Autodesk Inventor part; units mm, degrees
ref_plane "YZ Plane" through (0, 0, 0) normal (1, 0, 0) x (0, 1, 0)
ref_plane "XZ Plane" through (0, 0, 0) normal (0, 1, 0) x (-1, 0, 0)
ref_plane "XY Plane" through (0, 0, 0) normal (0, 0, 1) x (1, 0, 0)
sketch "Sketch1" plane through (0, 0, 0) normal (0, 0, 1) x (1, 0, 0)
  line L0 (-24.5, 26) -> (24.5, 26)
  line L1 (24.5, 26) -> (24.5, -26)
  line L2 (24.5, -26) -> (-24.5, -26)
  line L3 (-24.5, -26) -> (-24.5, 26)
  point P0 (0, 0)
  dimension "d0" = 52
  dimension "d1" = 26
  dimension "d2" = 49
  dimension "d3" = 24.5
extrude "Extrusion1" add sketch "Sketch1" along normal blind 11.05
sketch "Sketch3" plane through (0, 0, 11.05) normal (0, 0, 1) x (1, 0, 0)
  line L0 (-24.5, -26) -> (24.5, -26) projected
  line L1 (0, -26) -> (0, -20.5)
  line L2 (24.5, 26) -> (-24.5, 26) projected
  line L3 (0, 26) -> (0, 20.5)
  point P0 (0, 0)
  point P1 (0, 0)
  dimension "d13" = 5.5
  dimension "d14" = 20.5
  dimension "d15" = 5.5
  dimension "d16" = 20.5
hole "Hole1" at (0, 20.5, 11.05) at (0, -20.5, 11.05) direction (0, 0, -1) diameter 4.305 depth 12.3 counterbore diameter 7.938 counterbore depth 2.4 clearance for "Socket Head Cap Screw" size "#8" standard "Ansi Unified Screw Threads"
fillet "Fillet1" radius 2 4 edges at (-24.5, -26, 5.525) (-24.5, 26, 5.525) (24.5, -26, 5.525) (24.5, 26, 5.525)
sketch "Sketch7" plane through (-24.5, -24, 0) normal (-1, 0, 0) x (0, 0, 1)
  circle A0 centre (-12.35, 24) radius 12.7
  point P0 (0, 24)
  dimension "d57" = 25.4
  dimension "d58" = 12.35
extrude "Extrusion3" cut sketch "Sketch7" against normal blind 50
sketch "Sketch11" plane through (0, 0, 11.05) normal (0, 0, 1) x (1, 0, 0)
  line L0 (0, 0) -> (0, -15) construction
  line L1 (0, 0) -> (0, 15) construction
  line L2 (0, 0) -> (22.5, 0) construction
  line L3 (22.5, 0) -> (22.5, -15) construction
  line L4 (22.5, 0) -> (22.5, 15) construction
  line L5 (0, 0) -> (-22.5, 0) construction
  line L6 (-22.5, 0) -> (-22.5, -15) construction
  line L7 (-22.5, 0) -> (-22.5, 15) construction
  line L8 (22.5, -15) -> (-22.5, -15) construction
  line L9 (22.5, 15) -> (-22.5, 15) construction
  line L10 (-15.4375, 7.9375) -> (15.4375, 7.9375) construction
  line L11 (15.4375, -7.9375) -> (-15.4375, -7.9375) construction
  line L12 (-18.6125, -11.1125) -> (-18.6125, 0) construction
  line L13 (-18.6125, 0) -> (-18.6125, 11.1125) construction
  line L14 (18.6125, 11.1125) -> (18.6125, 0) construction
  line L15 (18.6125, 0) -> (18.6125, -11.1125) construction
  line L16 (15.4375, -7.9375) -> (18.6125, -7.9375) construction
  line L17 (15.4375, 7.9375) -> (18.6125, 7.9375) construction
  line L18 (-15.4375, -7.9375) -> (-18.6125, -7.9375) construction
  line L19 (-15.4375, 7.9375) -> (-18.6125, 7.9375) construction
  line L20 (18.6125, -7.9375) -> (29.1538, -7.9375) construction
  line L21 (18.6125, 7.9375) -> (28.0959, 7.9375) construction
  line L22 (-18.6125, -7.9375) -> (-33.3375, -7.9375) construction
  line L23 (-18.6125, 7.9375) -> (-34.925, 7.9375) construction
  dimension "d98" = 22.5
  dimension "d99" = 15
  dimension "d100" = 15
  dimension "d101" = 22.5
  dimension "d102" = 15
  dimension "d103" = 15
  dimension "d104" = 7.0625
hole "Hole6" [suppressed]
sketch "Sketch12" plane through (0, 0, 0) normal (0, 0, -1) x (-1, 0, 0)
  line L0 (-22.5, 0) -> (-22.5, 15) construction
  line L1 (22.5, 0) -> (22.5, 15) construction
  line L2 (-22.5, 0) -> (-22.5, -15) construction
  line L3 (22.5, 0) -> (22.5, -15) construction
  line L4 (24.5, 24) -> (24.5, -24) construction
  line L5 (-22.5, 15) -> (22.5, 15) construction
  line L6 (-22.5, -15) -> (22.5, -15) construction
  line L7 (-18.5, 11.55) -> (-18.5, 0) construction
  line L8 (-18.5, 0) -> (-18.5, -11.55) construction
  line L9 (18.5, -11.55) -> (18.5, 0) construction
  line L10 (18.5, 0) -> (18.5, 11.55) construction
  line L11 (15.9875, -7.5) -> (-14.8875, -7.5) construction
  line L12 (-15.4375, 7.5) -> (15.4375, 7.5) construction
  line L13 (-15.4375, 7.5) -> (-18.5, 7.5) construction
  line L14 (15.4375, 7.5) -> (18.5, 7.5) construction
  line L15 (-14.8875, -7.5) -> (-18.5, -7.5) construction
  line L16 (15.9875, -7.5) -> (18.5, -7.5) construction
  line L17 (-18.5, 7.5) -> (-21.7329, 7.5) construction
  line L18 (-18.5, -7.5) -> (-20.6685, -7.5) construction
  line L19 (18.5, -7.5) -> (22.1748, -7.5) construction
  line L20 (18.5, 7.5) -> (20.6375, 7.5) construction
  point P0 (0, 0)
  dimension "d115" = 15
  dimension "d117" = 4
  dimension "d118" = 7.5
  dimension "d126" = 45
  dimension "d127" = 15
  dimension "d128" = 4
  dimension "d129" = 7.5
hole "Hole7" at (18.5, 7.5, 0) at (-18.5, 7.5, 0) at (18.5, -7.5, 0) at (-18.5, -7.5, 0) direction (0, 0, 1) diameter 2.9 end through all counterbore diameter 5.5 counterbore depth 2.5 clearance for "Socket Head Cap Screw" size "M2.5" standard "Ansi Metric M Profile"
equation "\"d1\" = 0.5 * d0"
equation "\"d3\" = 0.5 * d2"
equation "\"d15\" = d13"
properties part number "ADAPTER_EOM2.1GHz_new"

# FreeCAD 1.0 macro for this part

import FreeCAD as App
import Part
import Sketcher


def edges_at(feature, points):
    """Names of the edges that pass closest to the given points."""
    edges = feature.Shape.Edges
    near = lambda p: min(range(len(edges)), key=lambda i: edges[i].distToShape(Part.Vertex(*p))[0])
    return sorted({f"Edge{near(p) + 1}" for p in points})


def add_polygon(sketch, points):
    """Adds a closed chain of lines whose ends are joined by coincident constraints."""
    first, n = sketch.GeometryCount, len(points)
    for a, b in zip(points, points[1:] + points[:1]):
        sketch.addGeometry(Part.LineSegment(App.Vector(*a, 0), App.Vector(*b, 0)), False)
    for i in range(n):
        sketch.addConstraint(Sketcher.Constraint("Coincident", first + i, 2, first + (i + 1) % n, 1))

doc = App.newDocument("Part")
body = doc.addObject("PartDesign::Body", "Body")

# Sketch on XY plane
sketch1 = body.newObject("Sketcher::SketchObject", "Sketch")
sketch1.AttachmentSupport = (doc.getObject("XY_Plane"), [""])
sketch1.MapMode = "FlatFace"
add_polygon(sketch1, [(24.5, 26), (-24.5, 26), (-24.5, -26), (24.5, -26)])  # lines 0-3
sketch1.addConstraint([
    Sketcher.Constraint("Horizontal", 0),
    Sketcher.Constraint("Vertical", 1),
    Sketcher.Constraint("Horizontal", 2),
    Sketcher.Constraint("Vertical", 3),
    Sketcher.Constraint("Symmetric", 0, 2, 2, 2, -1, 1),
    Sketcher.Constraint("DistanceX", 0, 2, 0, 1, 49.0),
    Sketcher.Constraint("DistanceY", 1, 2, 1, 1, 52.0),
])
pad1 = body.newObject("PartDesign::Pad", "Pad")
pad1.Profile = sketch1
pad1.Length = 11.05

# Sketch on XY plane
sketch2 = body.newObject("Sketcher::SketchObject", "Sketch001")
sketch2.AttachmentSupport = (doc.getObject("XY_Plane"), [""])
sketch2.MapMode = "FlatFace"
sketch2.AttachmentOffset = App.Placement(App.Vector(0, 0, 11.05), App.Rotation())
sketch2.addGeometry([
    Part.Circle(App.Vector(0, 20.5, 0), App.Vector(0, 0, 1), 2.1525),
    Part.Circle(App.Vector(0, -20.5, 0), App.Vector(0, 0, 1), 2.1525),
], False)
sketch2.addConstraint([
    Sketcher.Constraint("Equal", 0, 1),
    Sketcher.Constraint("Symmetric", 0, 3, 1, 3, -1, 1),
    Sketcher.Constraint("PointOnObject", 0, 3, -2),
    Sketcher.Constraint("Diameter", 0, 4.305),
    Sketcher.Constraint("DistanceY", 1, 3, 0, 3, 41.0),
])
doc.recompute()
hole = body.newObject("PartDesign::Hole", "Hole")
hole.Profile = sketch2
hole.ThreadType = "None"
hole.Diameter = 4.305
hole.DepthType = "Dimension"
hole.Depth = 12.3
hole.DrillPoint = "Flat"
hole.HoleCutType = "Counterbore"
hole.HoleCutDiameter = 7.938
hole.HoleCutDepth = 2.4
doc.recompute()

fillet = body.newObject("PartDesign::Fillet", "Fillet")
fillet.Base = (hole, edges_at(hole, [
    (-24.5, -26, 5.525),
    (-24.5, 26, 5.525),
    (24.5, -26, 5.525),
    (24.5, 26, 5.525),
]))
fillet.Radius = 2

# Sketch on YZ plane
sketch3 = body.newObject("Sketcher::SketchObject", "Sketch002")
sketch3.AttachmentSupport = (doc.getObject("YZ_Plane"), [""])
sketch3.MapMode = "FlatFace"
sketch3.AttachmentOffset = App.Placement(App.Vector(0, 0, -24.5), App.Rotation())
sketch3.addGeometry(Part.Circle(App.Vector(0, -12.35, 0), App.Vector(0, 0, 1), 12.7), False)
sketch3.addConstraint([
    Sketcher.Constraint("PointOnObject", 0, 3, -2),
    Sketcher.Constraint("Diameter", 0, 25.4),
    Sketcher.Constraint("DistanceY", 0, 3, -1, 1, 12.35),
])
pocket1 = body.newObject("PartDesign::Pocket", "Pocket")
pocket1.Profile = sketch3
pocket1.Length = 50
pocket1.Reversed = True

# Sketch on XY plane
sketch4 = body.newObject("Sketcher::SketchObject", "Sketch003")
sketch4.AttachmentSupport = (doc.getObject("XY_Plane"), [""])
sketch4.MapMode = "FlatFace"
sketch4.addGeometry([
    Part.Circle(App.Vector(18.5, 7.5, 0), App.Vector(0, 0, 1), 1.45),
    Part.Circle(App.Vector(-18.5, 7.5, 0), App.Vector(0, 0, 1), 1.45),
    Part.Circle(App.Vector(18.5, -7.5, 0), App.Vector(0, 0, 1), 1.45),
    Part.Circle(App.Vector(-18.5, -7.5, 0), App.Vector(0, 0, 1), 1.45),
], False)
sketch4.addConstraint([
    Sketcher.Constraint("Equal", 0, 1),
    Sketcher.Constraint("Equal", 1, 2),
    Sketcher.Constraint("Equal", 2, 3),
    Sketcher.Constraint("Symmetric", 1, 3, 2, 3, -1, 1),
    Sketcher.Constraint("Symmetric", 0, 3, 3, 3, -1, 1),
    Sketcher.Constraint("Symmetric", 0, 3, 1, 3, -2),
    Sketcher.Constraint("Diameter", 0, 2.9),
    Sketcher.Constraint("DistanceX", 1, 3, 0, 3, 37.0),
    Sketcher.Constraint("DistanceY", 2, 3, 0, 3, 15.0),
])
doc.recompute()
hole2 = body.newObject("PartDesign::Hole", "Hole001")
hole2.Profile = sketch4
hole2.ThreadType = "None"
hole2.Diameter = 2.9
hole2.DepthType = "ThroughAll"
hole2.HoleCutType = "Counterbore"
hole2.HoleCutDiameter = 5.5
hole2.HoleCutDepth = 2.5
hole2.Reversed = True

doc.recompute()
